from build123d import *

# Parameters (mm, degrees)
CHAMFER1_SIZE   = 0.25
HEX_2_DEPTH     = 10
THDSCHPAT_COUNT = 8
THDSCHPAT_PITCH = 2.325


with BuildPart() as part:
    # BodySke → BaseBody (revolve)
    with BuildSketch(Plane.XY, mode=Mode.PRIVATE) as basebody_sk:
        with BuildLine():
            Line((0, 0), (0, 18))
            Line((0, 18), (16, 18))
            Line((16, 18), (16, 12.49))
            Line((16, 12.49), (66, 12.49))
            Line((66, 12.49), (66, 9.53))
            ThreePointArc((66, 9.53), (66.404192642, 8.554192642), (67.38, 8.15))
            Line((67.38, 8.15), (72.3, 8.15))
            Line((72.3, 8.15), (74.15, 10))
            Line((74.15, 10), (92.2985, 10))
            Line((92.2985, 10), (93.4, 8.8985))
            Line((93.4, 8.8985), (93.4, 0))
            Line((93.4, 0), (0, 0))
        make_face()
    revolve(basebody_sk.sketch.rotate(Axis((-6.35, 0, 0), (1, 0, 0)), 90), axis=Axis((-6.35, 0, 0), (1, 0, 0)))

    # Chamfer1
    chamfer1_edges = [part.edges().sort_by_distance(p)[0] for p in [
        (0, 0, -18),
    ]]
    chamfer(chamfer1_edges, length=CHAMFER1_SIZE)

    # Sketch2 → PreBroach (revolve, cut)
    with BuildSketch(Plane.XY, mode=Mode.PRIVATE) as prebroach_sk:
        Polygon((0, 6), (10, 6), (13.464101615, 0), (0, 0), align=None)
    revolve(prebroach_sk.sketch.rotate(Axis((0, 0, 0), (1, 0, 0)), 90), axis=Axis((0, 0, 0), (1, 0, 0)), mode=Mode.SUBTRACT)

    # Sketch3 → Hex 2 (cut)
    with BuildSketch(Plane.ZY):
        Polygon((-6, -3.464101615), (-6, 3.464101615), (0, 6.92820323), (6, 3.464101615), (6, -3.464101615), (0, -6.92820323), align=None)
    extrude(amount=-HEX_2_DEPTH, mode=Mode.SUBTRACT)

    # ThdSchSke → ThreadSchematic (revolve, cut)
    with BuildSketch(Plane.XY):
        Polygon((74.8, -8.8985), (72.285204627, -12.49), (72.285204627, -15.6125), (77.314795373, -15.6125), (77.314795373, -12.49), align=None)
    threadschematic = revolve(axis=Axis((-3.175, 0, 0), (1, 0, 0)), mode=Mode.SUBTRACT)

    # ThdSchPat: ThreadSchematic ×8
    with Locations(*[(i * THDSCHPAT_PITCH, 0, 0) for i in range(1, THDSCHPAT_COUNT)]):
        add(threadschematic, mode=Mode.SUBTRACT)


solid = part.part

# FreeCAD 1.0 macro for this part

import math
import FreeCAD as App
import Part
import Sketcher
Q = App.Units.Quantity


def edges_at(feature, points):
    """Names of the edges that pass closest to the given points."""
    edges = feature.Shape.Edges
    near = lambda p: min(range(len(edges)), key=lambda i: edges[i].distToShape(Part.Vertex(*p))[0])
    return sorted({f"Edge{near(p) + 1}" for p in points})

doc = App.newDocument("Part")
body = doc.addObject("PartDesign::Body", "Body")

# Sketch on XY plane
sketch1 = doc.addObject("Sketcher::SketchObject", "Sketch")
body.addObject(sketch1)
sketch1.AttachmentSupport = (doc.XY_Plane, [""])
sketch1.MapMode = "FlatFace"
sketch1.addGeometry([
    Part.LineSegment(App.Vector(0, 18, 0), App.Vector(0, 0, 0)),  # 0
    Part.LineSegment(App.Vector(0, 0, 0), App.Vector(93.4, 0, 0)),  # 1
    Part.LineSegment(App.Vector(93.4, 0, 0), App.Vector(93.4, 8.9, 0)),  # 2
    Part.LineSegment(App.Vector(93.4, 8.9, 0), App.Vector(92.3, 10, 0)),  # 3
    Part.LineSegment(App.Vector(92.3, 10, 0), App.Vector(74.2, 10, 0)),  # 4
    Part.LineSegment(App.Vector(74.2, 10, 0), App.Vector(72.3, 8.2, 0)),  # 5
    Part.LineSegment(App.Vector(72.3, 8.2, 0), App.Vector(67.4, 8.2, 0)),  # 6
    Part.ArcOfCircle(Part.Circle(App.Vector(67.4, 9.5, 0), App.Vector(0, 0, 1), 1.4), math.radians(180), math.radians(270)),  # 7
    Part.LineSegment(App.Vector(66, 9.5, 0), App.Vector(66, 12.5, 0)),  # 8
    Part.LineSegment(App.Vector(66, 12.5, 0), App.Vector(16, 12.5, 0)),  # 9
    Part.LineSegment(App.Vector(16, 12.5, 0), App.Vector(16, 18, 0)),  # 10
    Part.LineSegment(App.Vector(16, 18, 0), App.Vector(0, 18, 0)),  # 11
], False)
sketch1.addConstraint([
    Sketcher.Constraint("Coincident", 0, 2, 1, 1),
    Sketcher.Constraint("Coincident", 1, 2, 2, 1),
    Sketcher.Constraint("Coincident", 2, 2, 3, 1),
    Sketcher.Constraint("Coincident", 3, 2, 4, 1),
    Sketcher.Constraint("Coincident", 4, 2, 5, 1),
    Sketcher.Constraint("Coincident", 5, 2, 6, 1),
    Sketcher.Constraint("Tangent", 6, 2, 7, 2),
    Sketcher.Constraint("Tangent", 7, 1, 8, 1),
    Sketcher.Constraint("Coincident", 8, 2, 9, 1),
    Sketcher.Constraint("Coincident", 9, 2, 10, 1),
    Sketcher.Constraint("Coincident", 10, 2, 11, 1),
    Sketcher.Constraint("Coincident", 11, 2, 0, 1),
    Sketcher.Constraint("Vertical", 0),
    Sketcher.Constraint("Horizontal", 1),
    Sketcher.Constraint("Vertical", 2),
    Sketcher.Constraint("Horizontal", 4),
    Sketcher.Constraint("Horizontal", 6),
    Sketcher.Constraint("Vertical", 8),
    Sketcher.Constraint("Horizontal", 9),
    Sketcher.Constraint("Vertical", 10),
    Sketcher.Constraint("Horizontal", 11),
    Sketcher.Constraint("Coincident", 0, 2, -1, 1),
    Sketcher.Constraint("Perpendicular", 3, 5),
    Sketcher.Constraint("DistanceX", 9, 2, 9, 1, 50.0),
    Sketcher.Constraint("DistanceX", 11, 2, 11, 1, 16.0),
    Sketcher.Constraint("DistanceY", 0, 2, 0, 1, 18.0),
    Sketcher.Constraint("Angle", 3, Q("135 deg")),
    Sketcher.Constraint("Radius", 7, 1.38),
    Sketcher.Constraint("DistanceX", 1, 1, 1, 2, 93.4),
    Sketcher.Constraint("DistanceY", -1, 1, 3, 2, 10.0),
    Sketcher.Constraint("DistanceX", 6, 2, 6, 1, 4.92),
    Sketcher.Constraint("DistanceY", 8, 1, 8, 2, 2.96),
    Sketcher.Constraint("DistanceY", 10, 1, 10, 2, 5.51),
    Sketcher.Constraint("DistanceX", 4, 2, 4, 1, 18.1485),
])
revolution = doc.addObject("PartDesign::Revolution", "Revolution")
body.addObject(revolution)
revolution.Profile = sketch1
revolution.ReferenceAxis = (sketch1, ["H_Axis"])
revolution.Angle = 360
doc.recompute()

chamfer = doc.addObject("PartDesign::Chamfer", "Chamfer")
body.addObject(chamfer)
chamfer.Base = (revolution, edges_at(revolution, [(0, 0, -18)]))
chamfer.Size = 0.25

# Sketch on XY plane
sketch2 = doc.addObject("Sketcher::SketchObject", "Sketch001")
body.addObject(sketch2)
sketch2.AttachmentSupport = (doc.XY_Plane, [""])
sketch2.MapMode = "FlatFace"
sketch2.addGeometry([
    Part.LineSegment(App.Vector(10, 6, 0), App.Vector(0, 6, 0)),
    Part.LineSegment(App.Vector(0, 6, 0), App.Vector(0, 0, 0)),
    Part.LineSegment(App.Vector(0, 0, 0), App.Vector(13, 0, 0)),
    Part.LineSegment(App.Vector(13, 0, 0), App.Vector(10, 6, 0)),
], False)
sketch2.addConstraint([
    Sketcher.Constraint("Coincident", 0, 2, 1, 1),
    Sketcher.Constraint("Coincident", 1, 2, 2, 1),
    Sketcher.Constraint("Coincident", 2, 2, 3, 1),
    Sketcher.Constraint("Coincident", 3, 2, 0, 1),
    Sketcher.Constraint("Horizontal", 0),
    Sketcher.Constraint("Vertical", 1),
    Sketcher.Constraint("Horizontal", 2),
    Sketcher.Constraint("Coincident", 1, 2, -1, 1),
    Sketcher.Constraint("DistanceX", 0, 2, 0, 1, 10.0),
    Sketcher.Constraint("DistanceY", 1, 2, 1, 1, 6.0),
    Sketcher.Constraint("Angle", 3, Q("120 deg")),
])
groove = doc.addObject("PartDesign::Groove", "Groove")
body.addObject(groove)
groove.Profile = sketch2
groove.ReferenceAxis = (sketch2, ["H_Axis"])
groove.Angle = 360

# Sketch on YZ plane
sketch3 = doc.addObject("Sketcher::SketchObject", "Sketch002")
body.addObject(sketch3)
sketch3.AttachmentSupport = (doc.YZ_Plane, [""])
sketch3.MapMode = "FlatFace"
sketch3.addGeometry([
    Part.LineSegment(App.Vector(3, -6, 0), App.Vector(-3, -6, 0)),  # 0
    Part.LineSegment(App.Vector(-3, -6, 0), App.Vector(-7, 0, 0)),  # 1
    Part.LineSegment(App.Vector(-7, 0, 0), App.Vector(-3, 6, 0)),  # 2
    Part.LineSegment(App.Vector(-3, 6, 0), App.Vector(3, 6, 0)),  # 3
    Part.LineSegment(App.Vector(3, 6, 0), App.Vector(7, 0, 0)),  # 4
    Part.LineSegment(App.Vector(7, 0, 0), App.Vector(3, -6, 0)),  # 5
], False)
sketch3.addConstraint([
    Sketcher.Constraint("Coincident", 0, 2, 1, 1),
    Sketcher.Constraint("Coincident", 1, 2, 2, 1),
    Sketcher.Constraint("Coincident", 2, 2, 3, 1),
    Sketcher.Constraint("Coincident", 3, 2, 4, 1),
    Sketcher.Constraint("Coincident", 4, 2, 5, 1),
    Sketcher.Constraint("Coincident", 5, 2, 0, 1),
    Sketcher.Constraint("Horizontal", 0),
    Sketcher.Constraint("Horizontal", 3),
    Sketcher.Constraint("Symmetric", 0, 2, 3, 2, -1, 1),
    Sketcher.Constraint("Symmetric", 1, 2, 4, 2, -1, 1),
    Sketcher.Constraint("PointOnObject", 1, 2, -1),
    Sketcher.Constraint("Parallel", 2, 5),
    Sketcher.Constraint("Vertical", 0, 2, 2, 2),
    Sketcher.Constraint("Angle", 1, Q("120 deg")),
    Sketcher.Constraint("DistanceY", 0, 2, -1, 1, 6.0),
    Sketcher.Constraint("DistanceX", 0, 2, -1, 1, 3.464102),
])
pocket1 = doc.addObject("PartDesign::Pocket", "Pocket")
body.addObject(pocket1)
pocket1.Profile = sketch3
pocket1.Length = 10
pocket1.Reversed = True

# Sketch on XY plane
sketch4 = doc.addObject("Sketcher::SketchObject", "Sketch003")
body.addObject(sketch4)
sketch4.AttachmentSupport = (doc.XY_Plane, [""])
sketch4.MapMode = "FlatFace"
sketch4.addGeometry([
    Part.LineSegment(App.Vector(74.8, -8.9, 0), App.Vector(72.3, -12.5, 0)),  # 0
    Part.LineSegment(App.Vector(72.3, -12.5, 0), App.Vector(72.3, -15.6, 0)),  # 1
    Part.LineSegment(App.Vector(72.3, -15.6, 0), App.Vector(77.3, -15.6, 0)),  # 2
    Part.LineSegment(App.Vector(77.3, -15.6, 0), App.Vector(77.3, -12.5, 0)),  # 3
    Part.LineSegment(App.Vector(77.3, -12.5, 0), App.Vector(74.8, -8.9, 0)),  # 4
], False)
sketch4.addConstraint([
    Sketcher.Constraint("Coincident", 0, 2, 1, 1),
    Sketcher.Constraint("Coincident", 1, 2, 2, 1),
    Sketcher.Constraint("Coincident", 2, 2, 3, 1),
    Sketcher.Constraint("Coincident", 3, 2, 4, 1),
    Sketcher.Constraint("Coincident", 4, 2, 0, 1),
    Sketcher.Constraint("Vertical", 1),
    Sketcher.Constraint("Horizontal", 2),
    Sketcher.Constraint("Vertical", 3),
    Sketcher.Constraint("Horizontal", 0, 2, 3, 2),
    Sketcher.Constraint("Equal", 0, 4),
    Sketcher.Constraint("Angle", 0, Q("-125 deg")),
    Sketcher.Constraint("DistanceX", -1, 1, 4, 2, 74.8),
    Sketcher.Constraint("DistanceY", 0, 2, -1, 1, 12.49),
    Sketcher.Constraint("DistanceY", 1, 2, 1, 1, 3.1225),
    Sketcher.Constraint("DistanceY", 1, 2, 4, 2, 6.714),
])
groove2 = doc.addObject("PartDesign::Groove", "Groove001")
body.addObject(groove2)
groove2.Profile = sketch4
groove2.ReferenceAxis = (sketch4, ["H_Axis"])
groove2.Angle = 360
doc.recompute()

linearpattern = doc.addObject("PartDesign::LinearPattern", "LinearPattern")
body.addObject(linearpattern)
linearpattern.Originals = [groove2]
linearpattern.Direction = (doc.X_Axis, [""])
linearpattern.Mode = "offset"
linearpattern.Offset = 2.325
linearpattern.Occurrences = 8
body.Tip = linearpattern

doc.recompute()
